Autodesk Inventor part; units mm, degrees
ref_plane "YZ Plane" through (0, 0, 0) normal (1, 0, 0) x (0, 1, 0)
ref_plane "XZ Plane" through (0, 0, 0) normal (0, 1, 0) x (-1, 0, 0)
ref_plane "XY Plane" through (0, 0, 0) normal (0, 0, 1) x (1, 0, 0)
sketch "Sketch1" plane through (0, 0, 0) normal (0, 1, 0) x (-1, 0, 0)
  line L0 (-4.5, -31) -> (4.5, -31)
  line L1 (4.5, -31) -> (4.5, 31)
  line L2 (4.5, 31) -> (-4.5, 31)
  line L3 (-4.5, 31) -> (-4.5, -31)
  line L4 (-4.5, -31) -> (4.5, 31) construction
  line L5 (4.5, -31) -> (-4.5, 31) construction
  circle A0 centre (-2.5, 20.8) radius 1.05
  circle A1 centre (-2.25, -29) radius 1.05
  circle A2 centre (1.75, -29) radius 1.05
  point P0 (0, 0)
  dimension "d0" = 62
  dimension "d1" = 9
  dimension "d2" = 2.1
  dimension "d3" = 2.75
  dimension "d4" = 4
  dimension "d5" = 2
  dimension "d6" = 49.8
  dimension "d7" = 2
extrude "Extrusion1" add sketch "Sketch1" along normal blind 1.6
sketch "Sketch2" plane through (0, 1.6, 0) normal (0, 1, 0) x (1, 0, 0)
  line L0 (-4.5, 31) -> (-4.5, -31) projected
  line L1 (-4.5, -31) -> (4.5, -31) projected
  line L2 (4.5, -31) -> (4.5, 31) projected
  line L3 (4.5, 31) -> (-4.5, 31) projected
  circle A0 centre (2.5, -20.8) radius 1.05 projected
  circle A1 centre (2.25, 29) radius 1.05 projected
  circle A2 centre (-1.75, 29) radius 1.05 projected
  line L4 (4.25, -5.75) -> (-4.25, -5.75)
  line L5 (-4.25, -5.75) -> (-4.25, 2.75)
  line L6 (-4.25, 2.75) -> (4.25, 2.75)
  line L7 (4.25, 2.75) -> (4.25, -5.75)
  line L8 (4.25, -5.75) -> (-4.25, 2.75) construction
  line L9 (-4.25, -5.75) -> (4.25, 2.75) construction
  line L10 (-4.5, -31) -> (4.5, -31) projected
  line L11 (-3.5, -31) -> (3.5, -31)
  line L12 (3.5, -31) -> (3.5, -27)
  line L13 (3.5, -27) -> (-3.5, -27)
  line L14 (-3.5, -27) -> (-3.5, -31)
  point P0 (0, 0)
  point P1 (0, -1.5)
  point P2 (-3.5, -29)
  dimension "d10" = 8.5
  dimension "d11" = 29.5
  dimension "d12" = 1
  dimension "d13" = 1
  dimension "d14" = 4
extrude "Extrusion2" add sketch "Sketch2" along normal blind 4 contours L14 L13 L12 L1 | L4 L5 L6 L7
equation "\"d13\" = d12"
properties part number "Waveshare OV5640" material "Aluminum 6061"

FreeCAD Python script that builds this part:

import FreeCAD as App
import Part
import Sketcher
from FreeCAD import Vector
Q = App.Units.Quantity

doc = App.newDocument("Part")
body = doc.addObject("PartDesign::Body", "Body")

# Sketch on XZ plane
sketch1 = body.newObject("Sketcher::SketchObject", "Sketch")
sketch1.AttachmentSupport = (doc.getObject("XZ_Plane"), [""])
sketch1.MapMode = "FlatFace"
sketch1.addGeometry([
    Part.LineSegment(Vector(4.5, 31, 0), Vector(4.5, -31, 0)),  # 0
    Part.LineSegment(Vector(4.5, -31, 0), Vector(-4.5, -31, 0)),  # 1
    Part.LineSegment(Vector(-4.5, -31, 0), Vector(-4.5, 31, 0)),  # 2
    Part.LineSegment(Vector(-4.5, 31, 0), Vector(4.5, 31, 0)),  # 3
    Part.Circle(Vector(2.2, -29, 0), Vector(0, 0, 1), 1.1),  # 4
    Part.Circle(Vector(-1.8, -29, 0), Vector(0, 0, 1), 1.1),  # 5
    Part.Circle(Vector(2.5, 20.8, 0), Vector(0, 0, 1), 1.1),  # 6
], False)
sketch1.addConstraint([
    Sketcher.Constraint("Coincident", 0, 2, 1, 1),
    Sketcher.Constraint("Coincident", 1, 2, 2, 1),
    Sketcher.Constraint("Coincident", 2, 2, 3, 1),
    Sketcher.Constraint("Coincident", 3, 2, 0, 1),
    Sketcher.Constraint("Vertical", 0),
    Sketcher.Constraint("Horizontal", 1),
    Sketcher.Constraint("Vertical", 2),
    Sketcher.Constraint("Horizontal", 3),
    Sketcher.Constraint("Equal", 4, 5),
    Sketcher.Constraint("Equal", 5, 6),
    Sketcher.Constraint("Symmetric", 0, 2, 2, 2, -1, 1),
    Sketcher.Constraint("Horizontal", 4, 3, 5, 3),
    Sketcher.Constraint("Diameter", 4, Q("2.1 mm")),
    Sketcher.Constraint("DistanceX", 1, 2, 1, 1, Q("9 mm")),
    Sketcher.Constraint("DistanceY", 0, 2, 0, 1, Q("62 mm")),
    Sketcher.Constraint("DistanceX", 5, 3, 4, 3, Q("4 mm")),
    Sketcher.Constraint("DistanceY", 0, 2, 4, 3, Q("2 mm")),
    Sketcher.Constraint("DistanceX", 6, 3, 0, 2, Q("2 mm")),
    Sketcher.Constraint("DistanceY", 4, 3, 6, 3, Q("49.8 mm")),
    Sketcher.Constraint("DistanceX", 1, 2, 5, 3, Q("2.75 mm")),
])
pad1 = body.newObject("PartDesign::Pad", "Pad")
pad1.Profile = sketch1
pad1.Length = 1.6
pad1.Reversed = True

# Sketch on XZ plane
sketch2 = body.newObject("Sketcher::SketchObject", "Sketch001")
sketch2.AttachmentSupport = (doc.getObject("XZ_Plane"), [""])
sketch2.MapMode = "FlatFace"
sketch2.AttachmentOffset = App.Placement(Vector(0, 0, -1.6), App.Rotation())
sketch2.addGeometry([
    Part.LineSegment(Vector(-3.5, 27, 0), Vector(-3.5, 31, 0)),  # 0
    Part.LineSegment(Vector(-3.5, 31, 0), Vector(3.5, 31, 0)),  # 1
    Part.LineSegment(Vector(3.5, 31, 0), Vector(3.5, 27, 0)),  # 2
    Part.LineSegment(Vector(3.5, 27, 0), Vector(-3.5, 27, 0)),  # 3
    Part.LineSegment(Vector(-4.2, 5.8, 0), Vector(4.2, 5.8, 0)),  # 4
    Part.LineSegment(Vector(4.2, 5.8, 0), Vector(4.2, -2.8, 0)),  # 5
    Part.LineSegment(Vector(4.2, -2.8, 0), Vector(-4.2, -2.8, 0)),  # 6
    Part.LineSegment(Vector(-4.2, -2.8, 0), Vector(-4.2, 5.8, 0)),  # 7
], False)
sketch2.addConstraint([
    Sketcher.Constraint("Coincident", 0, 2, 1, 1),
    Sketcher.Constraint("Coincident", 1, 2, 2, 1),
    Sketcher.Constraint("Coincident", 2, 2, 3, 1),
    Sketcher.Constraint("Coincident", 3, 2, 0, 1),
    Sketcher.Constraint("Coincident", 4, 2, 5, 1),
    Sketcher.Constraint("Coincident", 5, 2, 6, 1),
    Sketcher.Constraint("Coincident", 6, 2, 7, 1),
    Sketcher.Constraint("Coincident", 7, 2, 4, 1),
    Sketcher.Constraint("Vertical", 0),
    Sketcher.Constraint("Horizontal", 1),
    Sketcher.Constraint("Vertical", 2),
    Sketcher.Constraint("Horizontal", 3),
    Sketcher.Constraint("Horizontal", 4),
    Sketcher.Constraint("Vertical", 5),
    Sketcher.Constraint("Horizontal", 6),
    Sketcher.Constraint("Vertical", 7),
    Sketcher.Constraint("Equal", 6, 5),
    Sketcher.Constraint("DistanceY", 0, 1, 0, 2, Q("4 mm")),
    Sketcher.Constraint("DistanceX", 4, 1, 4, 2, Q("8.5 mm")),
    Sketcher.Constraint("DistanceX", 1, 1, 1, 2, Q("7 mm")),
    Sketcher.Constraint("DistanceY", -1, 1, 0, 2, Q("31 mm")),
    Sketcher.Constraint("DistanceX", 0, 2, -1, 1, Q("3.5 mm")),
    Sketcher.Constraint("DistanceX", -1, 1, 4, 2, Q("4.25 mm")),
    Sketcher.Constraint("DistanceY", -1, 1, 4, 2, Q("5.75 mm")),
])
pad2 = body.newObject("PartDesign::Pad", "Pad001")
pad2.Profile = sketch2
pad2.Length = 4
pad2.Reversed = True

doc.recompute()
